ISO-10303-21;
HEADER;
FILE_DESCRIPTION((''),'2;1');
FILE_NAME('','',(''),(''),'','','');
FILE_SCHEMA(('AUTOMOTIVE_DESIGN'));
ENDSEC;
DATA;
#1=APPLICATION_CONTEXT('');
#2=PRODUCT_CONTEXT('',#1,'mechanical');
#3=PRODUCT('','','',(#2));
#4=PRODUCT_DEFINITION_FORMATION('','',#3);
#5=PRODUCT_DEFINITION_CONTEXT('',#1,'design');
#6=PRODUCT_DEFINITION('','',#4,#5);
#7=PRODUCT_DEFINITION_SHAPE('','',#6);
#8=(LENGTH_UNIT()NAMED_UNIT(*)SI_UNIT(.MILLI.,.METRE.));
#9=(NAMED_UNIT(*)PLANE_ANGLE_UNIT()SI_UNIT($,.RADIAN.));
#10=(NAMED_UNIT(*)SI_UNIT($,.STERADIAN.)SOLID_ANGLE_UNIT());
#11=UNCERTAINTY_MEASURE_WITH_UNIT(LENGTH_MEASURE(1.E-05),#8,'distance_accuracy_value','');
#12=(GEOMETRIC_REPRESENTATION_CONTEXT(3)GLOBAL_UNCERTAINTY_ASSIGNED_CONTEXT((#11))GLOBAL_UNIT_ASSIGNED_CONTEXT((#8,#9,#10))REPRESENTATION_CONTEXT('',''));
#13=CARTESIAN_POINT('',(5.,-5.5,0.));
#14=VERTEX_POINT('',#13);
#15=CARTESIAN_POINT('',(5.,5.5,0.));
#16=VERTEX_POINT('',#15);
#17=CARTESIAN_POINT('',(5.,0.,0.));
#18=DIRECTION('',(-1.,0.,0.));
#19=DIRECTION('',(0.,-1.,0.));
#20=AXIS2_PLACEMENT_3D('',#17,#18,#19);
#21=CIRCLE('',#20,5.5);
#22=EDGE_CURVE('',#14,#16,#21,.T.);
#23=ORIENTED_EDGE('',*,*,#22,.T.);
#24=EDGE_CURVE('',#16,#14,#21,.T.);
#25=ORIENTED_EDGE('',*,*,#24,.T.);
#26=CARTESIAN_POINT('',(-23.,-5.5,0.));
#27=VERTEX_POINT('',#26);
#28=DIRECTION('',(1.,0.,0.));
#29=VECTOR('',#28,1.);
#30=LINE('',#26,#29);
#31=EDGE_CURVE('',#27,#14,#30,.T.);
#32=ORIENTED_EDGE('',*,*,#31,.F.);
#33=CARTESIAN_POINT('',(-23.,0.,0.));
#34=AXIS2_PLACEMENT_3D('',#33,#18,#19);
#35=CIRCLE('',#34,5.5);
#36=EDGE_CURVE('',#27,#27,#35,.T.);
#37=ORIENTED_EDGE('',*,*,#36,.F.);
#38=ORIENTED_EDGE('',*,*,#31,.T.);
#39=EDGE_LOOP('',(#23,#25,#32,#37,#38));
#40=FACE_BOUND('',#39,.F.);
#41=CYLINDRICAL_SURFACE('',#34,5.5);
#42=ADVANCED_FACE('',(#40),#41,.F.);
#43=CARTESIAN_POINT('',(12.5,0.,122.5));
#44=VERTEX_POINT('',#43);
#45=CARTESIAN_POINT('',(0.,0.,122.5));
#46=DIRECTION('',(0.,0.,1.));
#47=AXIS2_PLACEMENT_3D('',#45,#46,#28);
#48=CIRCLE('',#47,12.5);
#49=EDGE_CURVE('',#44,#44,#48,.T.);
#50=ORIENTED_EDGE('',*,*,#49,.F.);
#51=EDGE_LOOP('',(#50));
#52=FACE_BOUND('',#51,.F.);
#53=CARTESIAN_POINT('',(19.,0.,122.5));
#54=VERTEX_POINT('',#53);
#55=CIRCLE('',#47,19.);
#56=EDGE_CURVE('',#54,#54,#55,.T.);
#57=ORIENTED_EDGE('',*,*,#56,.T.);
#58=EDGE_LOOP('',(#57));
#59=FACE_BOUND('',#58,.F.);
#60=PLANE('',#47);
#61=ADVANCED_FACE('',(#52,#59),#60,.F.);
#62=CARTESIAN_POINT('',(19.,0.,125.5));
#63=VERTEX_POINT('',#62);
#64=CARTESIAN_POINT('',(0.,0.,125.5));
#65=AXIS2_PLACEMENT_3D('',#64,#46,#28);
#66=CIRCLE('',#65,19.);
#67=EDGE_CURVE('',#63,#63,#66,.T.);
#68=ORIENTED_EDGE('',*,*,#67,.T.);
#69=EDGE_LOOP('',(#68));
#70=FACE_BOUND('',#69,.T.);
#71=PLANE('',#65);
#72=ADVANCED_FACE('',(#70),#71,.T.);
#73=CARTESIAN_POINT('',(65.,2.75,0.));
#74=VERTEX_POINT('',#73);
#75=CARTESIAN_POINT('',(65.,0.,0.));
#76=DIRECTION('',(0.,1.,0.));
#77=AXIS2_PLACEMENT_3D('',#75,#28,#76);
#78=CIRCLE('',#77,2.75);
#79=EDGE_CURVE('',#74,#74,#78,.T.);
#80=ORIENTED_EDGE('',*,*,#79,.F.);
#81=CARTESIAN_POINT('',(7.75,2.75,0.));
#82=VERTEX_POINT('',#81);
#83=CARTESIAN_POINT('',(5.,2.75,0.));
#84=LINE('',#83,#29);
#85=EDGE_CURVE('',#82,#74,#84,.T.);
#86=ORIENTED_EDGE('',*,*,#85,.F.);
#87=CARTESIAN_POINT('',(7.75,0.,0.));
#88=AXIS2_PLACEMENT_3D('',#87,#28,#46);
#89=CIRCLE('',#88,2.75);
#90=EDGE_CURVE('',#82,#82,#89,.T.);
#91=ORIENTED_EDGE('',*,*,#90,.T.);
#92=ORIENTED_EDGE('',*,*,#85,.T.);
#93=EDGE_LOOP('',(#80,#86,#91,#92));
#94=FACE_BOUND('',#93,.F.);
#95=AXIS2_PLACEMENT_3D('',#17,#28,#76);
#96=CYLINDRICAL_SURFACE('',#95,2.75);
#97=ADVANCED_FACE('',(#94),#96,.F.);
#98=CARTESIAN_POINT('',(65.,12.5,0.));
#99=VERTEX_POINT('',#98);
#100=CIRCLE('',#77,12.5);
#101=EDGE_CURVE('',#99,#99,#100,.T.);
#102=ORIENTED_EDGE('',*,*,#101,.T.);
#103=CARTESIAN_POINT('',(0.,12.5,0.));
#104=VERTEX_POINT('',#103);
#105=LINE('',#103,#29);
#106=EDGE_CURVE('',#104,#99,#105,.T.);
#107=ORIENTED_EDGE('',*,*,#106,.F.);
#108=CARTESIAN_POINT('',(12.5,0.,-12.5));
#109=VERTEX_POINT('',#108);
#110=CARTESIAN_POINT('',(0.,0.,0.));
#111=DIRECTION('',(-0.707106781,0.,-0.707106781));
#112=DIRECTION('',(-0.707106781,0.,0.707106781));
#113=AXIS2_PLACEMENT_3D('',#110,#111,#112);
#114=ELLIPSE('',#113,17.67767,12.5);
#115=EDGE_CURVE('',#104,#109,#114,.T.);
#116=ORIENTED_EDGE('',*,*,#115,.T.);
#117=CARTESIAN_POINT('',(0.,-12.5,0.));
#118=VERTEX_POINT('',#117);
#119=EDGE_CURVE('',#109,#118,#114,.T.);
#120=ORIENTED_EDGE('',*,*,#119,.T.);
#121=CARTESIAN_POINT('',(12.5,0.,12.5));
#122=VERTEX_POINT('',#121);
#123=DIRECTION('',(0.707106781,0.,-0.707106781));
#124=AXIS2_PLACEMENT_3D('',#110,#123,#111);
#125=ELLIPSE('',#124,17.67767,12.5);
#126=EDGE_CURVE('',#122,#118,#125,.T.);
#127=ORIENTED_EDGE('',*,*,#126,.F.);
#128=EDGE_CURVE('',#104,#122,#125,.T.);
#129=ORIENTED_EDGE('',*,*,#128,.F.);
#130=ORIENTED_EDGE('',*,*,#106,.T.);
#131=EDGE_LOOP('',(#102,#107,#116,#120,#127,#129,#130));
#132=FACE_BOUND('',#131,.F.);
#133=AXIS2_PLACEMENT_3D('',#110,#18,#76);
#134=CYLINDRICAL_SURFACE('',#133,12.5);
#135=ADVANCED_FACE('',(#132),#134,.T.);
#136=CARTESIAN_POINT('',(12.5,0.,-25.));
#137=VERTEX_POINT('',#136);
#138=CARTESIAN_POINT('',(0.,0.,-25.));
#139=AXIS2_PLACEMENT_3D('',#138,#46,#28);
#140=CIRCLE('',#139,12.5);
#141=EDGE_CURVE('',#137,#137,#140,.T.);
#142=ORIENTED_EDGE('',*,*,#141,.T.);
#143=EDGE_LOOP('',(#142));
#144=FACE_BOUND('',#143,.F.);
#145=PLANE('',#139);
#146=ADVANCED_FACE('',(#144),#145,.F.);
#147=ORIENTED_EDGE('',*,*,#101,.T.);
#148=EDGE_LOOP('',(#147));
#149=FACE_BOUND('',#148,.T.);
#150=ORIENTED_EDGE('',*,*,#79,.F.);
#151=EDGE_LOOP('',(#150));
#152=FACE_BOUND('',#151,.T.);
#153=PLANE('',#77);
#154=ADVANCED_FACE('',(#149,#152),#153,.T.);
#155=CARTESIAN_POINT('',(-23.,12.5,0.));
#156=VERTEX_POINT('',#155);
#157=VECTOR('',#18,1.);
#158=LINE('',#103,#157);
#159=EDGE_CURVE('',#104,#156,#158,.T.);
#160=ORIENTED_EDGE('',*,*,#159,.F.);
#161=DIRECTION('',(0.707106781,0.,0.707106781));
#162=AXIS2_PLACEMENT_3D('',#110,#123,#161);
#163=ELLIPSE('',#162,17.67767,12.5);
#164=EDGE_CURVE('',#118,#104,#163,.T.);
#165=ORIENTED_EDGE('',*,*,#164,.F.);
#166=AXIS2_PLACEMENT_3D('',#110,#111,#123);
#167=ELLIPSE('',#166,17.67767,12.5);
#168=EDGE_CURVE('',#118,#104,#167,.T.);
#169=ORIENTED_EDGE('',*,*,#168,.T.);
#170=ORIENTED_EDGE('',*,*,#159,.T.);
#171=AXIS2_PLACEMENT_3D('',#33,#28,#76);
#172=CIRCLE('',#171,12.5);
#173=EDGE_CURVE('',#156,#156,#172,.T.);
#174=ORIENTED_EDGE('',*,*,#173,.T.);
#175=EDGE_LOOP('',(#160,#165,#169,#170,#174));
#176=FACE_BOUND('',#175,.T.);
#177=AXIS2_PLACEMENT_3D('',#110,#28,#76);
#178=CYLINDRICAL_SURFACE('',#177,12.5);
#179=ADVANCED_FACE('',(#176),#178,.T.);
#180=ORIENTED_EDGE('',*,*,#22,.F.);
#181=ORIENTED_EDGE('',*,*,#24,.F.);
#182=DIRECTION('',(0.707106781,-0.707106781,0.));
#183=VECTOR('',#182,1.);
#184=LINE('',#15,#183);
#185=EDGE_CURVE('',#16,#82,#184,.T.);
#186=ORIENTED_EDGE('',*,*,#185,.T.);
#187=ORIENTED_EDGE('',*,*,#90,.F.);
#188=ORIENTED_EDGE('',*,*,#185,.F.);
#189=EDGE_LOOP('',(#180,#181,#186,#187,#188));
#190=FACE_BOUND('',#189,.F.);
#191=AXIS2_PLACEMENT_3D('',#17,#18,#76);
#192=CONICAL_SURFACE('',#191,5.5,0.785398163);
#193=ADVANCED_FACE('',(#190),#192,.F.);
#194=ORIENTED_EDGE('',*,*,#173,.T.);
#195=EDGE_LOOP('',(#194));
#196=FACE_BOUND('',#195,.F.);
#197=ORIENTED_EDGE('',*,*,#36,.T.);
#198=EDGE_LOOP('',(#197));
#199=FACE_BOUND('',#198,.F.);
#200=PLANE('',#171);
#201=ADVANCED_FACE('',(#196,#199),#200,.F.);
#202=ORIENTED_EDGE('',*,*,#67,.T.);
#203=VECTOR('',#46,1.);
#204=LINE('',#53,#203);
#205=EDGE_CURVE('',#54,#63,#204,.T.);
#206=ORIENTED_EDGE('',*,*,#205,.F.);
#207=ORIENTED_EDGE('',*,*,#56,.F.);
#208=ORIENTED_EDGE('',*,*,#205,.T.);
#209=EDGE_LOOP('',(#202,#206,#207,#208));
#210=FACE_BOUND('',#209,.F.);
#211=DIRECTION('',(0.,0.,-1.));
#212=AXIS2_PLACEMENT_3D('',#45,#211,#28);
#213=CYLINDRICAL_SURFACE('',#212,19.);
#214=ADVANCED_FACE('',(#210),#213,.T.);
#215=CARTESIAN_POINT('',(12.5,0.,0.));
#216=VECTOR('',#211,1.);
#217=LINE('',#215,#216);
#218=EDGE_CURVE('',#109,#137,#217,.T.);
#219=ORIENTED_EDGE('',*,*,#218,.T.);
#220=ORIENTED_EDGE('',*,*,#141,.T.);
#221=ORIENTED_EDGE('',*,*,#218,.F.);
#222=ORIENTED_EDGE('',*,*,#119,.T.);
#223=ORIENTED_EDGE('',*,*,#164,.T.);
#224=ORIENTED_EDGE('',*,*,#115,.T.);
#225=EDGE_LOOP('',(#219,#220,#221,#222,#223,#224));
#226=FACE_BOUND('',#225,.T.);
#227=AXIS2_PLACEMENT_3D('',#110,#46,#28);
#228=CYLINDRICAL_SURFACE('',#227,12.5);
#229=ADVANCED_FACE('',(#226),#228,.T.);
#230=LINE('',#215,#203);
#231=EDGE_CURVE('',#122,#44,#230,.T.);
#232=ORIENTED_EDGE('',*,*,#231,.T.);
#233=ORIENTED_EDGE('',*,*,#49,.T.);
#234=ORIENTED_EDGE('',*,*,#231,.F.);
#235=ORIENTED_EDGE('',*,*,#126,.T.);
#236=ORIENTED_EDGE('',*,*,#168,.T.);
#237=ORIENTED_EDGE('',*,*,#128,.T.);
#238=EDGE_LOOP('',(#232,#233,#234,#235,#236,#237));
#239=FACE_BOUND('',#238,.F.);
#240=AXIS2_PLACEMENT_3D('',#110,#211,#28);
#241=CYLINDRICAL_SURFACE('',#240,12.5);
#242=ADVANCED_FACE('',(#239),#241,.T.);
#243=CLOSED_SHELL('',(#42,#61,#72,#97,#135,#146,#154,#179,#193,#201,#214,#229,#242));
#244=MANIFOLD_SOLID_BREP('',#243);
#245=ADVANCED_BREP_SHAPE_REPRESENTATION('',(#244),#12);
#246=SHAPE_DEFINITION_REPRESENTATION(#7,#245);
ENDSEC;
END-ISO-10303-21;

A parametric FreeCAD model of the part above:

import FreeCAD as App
import Part
import Sketcher
from FreeCAD import Vector

doc = App.newDocument("Part")
body = doc.addObject("PartDesign::Body", "Body")

# Sketch on XY plane
sketch1 = body.newObject("Sketcher::SketchObject", "Sketch")
sketch1.AttachmentSupport = (doc.getObject("XY_Plane"), [""])
sketch1.MapMode = "FlatFace"
sketch1.addGeometry(Part.Circle(Vector(0, 0, 0), Vector(0, 0, 1), 12.5), False)
sketch1.addConstraint(Sketcher.Constraint("Coincident", 0, 3, -1, 1))
sketch1.addConstraint(Sketcher.Constraint("Diameter", 0, 25.0))
pad1 = body.newObject("PartDesign::Pad", "Pad")
pad1.Profile = sketch1
pad1.Length = 122.5

# Sketch on YZ plane
sketch2 = body.newObject("Sketcher::SketchObject", "Sketch001")
sketch2.AttachmentSupport = (doc.getObject("YZ_Plane"), [""])
sketch2.MapMode = "FlatFace"
sketch2.addGeometry(Part.Circle(Vector(0, 0, 0), Vector(0, 0, 1), 12.5), False)
sketch2.addConstraint(Sketcher.Constraint("Coincident", 0, 3, -1, 1))
sketch2.addConstraint(Sketcher.Constraint("Diameter", 0, 25.0))
pad2 = body.newObject("PartDesign::Pad", "Pad001")
pad2.Profile = sketch2
pad2.Length = 65

# Sketch on YZ plane
sketch3 = body.newObject("Sketcher::SketchObject", "Sketch002")
sketch3.AttachmentSupport = (doc.getObject("YZ_Plane"), [""])
sketch3.MapMode = "FlatFace"
sketch3.addGeometry(Part.Circle(Vector(0, 0, 0), Vector(0, 0, 1), 12.5), False)
sketch3.addConstraint(Sketcher.Constraint("Coincident", 0, 3, -1, 1))
sketch3.addConstraint(Sketcher.Constraint("Diameter", 0, 25.0))
pad3 = body.newObject("PartDesign::Pad", "Pad002")
pad3.Profile = sketch3
pad3.Length = 23
pad3.Reversed = True

# Sketch on XY plane
sketch4 = body.newObject("Sketcher::SketchObject", "Sketch003")
sketch4.AttachmentSupport = (doc.getObject("XY_Plane"), [""])
sketch4.MapMode = "FlatFace"
sketch4.addGeometry(Part.Circle(Vector(0, 0, 0), Vector(0, 0, 1), 12.5), False)
sketch4.addConstraint(Sketcher.Constraint("Coincident", 0, 3, -1, 1))
sketch4.addConstraint(Sketcher.Constraint("Diameter", 0, 25.0))
pad4 = body.newObject("PartDesign::Pad", "Pad003")
pad4.Profile = sketch4
pad4.Length = 25
pad4.Reversed = True

# Sketch on XY plane
sketch5 = body.newObject("Sketcher::SketchObject", "Sketch004")
sketch5.AttachmentSupport = (doc.getObject("XY_Plane"), [""])
sketch5.MapMode = "FlatFace"
sketch5.AttachmentOffset = App.Placement(Vector(0, 0, 122.5), App.Rotation())
sketch5.addGeometry(Part.Circle(Vector(0, 0, 0), Vector(0, 0, 1), 19), False)
sketch5.addConstraint(Sketcher.Constraint("Coincident", 0, 3, -1, 1))
sketch5.addConstraint(Sketcher.Constraint("Diameter", 0, 38.0))
pad5 = body.newObject("PartDesign::Pad", "Pad004")
pad5.Profile = sketch5
pad5.Length = 3

# Sketch on YZ plane
sketch6 = body.newObject("Sketcher::SketchObject", "Sketch005")
sketch6.AttachmentSupport = (doc.getObject("YZ_Plane"), [""])
sketch6.MapMode = "FlatFace"
sketch6.AttachmentOffset = App.Placement(Vector(0, 0, -23), App.Rotation())
sketch6.addGeometry(Part.Circle(Vector(0, 0, 0), Vector(0, 0, 1), 5.5), False)
sketch6.addConstraint(Sketcher.Constraint("Coincident", 0, 3, -1, 1))
sketch6.addConstraint(Sketcher.Constraint("Diameter", 0, 11.0))
pocket1 = body.newObject("PartDesign::Pocket", "Pocket")
pocket1.Profile = sketch6
pocket1.Length = 28
pocket1.Reversed = True

# Sketch on YZ plane
sketch7 = body.newObject("Sketcher::SketchObject", "Sketch006")
sketch7.AttachmentSupport = (doc.getObject("YZ_Plane"), [""])
sketch7.MapMode = "FlatFace"
sketch7.AttachmentOffset = App.Placement(Vector(0, 0, 5), App.Rotation())
sketch7.addGeometry(Part.Circle(Vector(0, 0, 0), Vector(0, 0, 1), 2.75), False)
sketch7.addConstraint(Sketcher.Constraint("Coincident", 0, 3, -1, 1))
sketch7.addConstraint(Sketcher.Constraint("Diameter", 0, 5.5))
doc.recompute()
hole = body.newObject("PartDesign::Hole", "Hole")
hole.Profile = sketch7
hole.ThreadType = "None"
hole.Diameter = 5.5
hole.DepthType = "Dimension"
hole.Depth = 100
hole.DrillPoint = "Flat"
hole.HoleCutType = "Countersink"
hole.HoleCutDiameter = 11
hole.HoleCutCountersinkAngle = 90
hole.Reversed = True

doc.recompute()
